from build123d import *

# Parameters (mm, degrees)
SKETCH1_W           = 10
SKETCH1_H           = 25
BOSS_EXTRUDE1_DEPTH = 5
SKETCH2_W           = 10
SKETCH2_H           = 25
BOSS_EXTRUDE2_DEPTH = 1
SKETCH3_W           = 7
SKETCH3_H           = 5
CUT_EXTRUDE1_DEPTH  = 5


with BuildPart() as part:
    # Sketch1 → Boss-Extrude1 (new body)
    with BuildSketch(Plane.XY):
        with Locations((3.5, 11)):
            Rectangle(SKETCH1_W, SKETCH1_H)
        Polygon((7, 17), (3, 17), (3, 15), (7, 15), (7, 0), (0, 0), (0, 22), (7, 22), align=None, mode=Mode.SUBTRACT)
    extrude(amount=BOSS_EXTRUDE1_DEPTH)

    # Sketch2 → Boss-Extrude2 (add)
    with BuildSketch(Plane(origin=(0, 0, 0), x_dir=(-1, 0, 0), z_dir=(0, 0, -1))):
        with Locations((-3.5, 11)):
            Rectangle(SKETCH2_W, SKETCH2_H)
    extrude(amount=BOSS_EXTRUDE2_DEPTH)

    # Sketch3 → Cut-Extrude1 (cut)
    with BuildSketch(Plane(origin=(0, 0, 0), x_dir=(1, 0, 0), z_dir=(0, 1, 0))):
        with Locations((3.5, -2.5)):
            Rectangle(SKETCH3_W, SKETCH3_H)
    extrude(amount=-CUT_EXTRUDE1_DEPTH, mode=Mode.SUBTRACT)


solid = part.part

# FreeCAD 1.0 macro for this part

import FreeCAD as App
import Part
import Sketcher
Q = App.Units.Quantity


def add_polygon(sketch, points):
    """Adds a closed chain of lines whose ends are joined by coincident constraints."""
    first, n = sketch.GeometryCount, len(points)
    for a, b in zip(points, points[1:] + points[:1]):
        sketch.addGeometry(Part.LineSegment(App.Vector(*a, 0), App.Vector(*b, 0)), False)
    for i in range(n):
        sketch.addConstraint(Sketcher.Constraint("Coincident", first + i, 2, first + (i + 1) % n, 1))

doc = App.newDocument("Part")
body = doc.addObject("PartDesign::Body", "Body")

# Sketch on XY plane
sketch1 = body.newObject("Sketcher::SketchObject", "Sketch")
sketch1.AttachmentSupport = (doc.getObject("XY_Plane"), [""])
sketch1.MapMode = "FlatFace"
add_polygon(sketch1, [(-1.5, 23.5), (-1.5, -1.5), (8.5, -1.5), (8.5, 23.5)])  # lines 0-3
add_polygon(sketch1, [(7, 22), (7, 17), (3, 17), (3, 15), (7, 15), (7, 0), (0, 0), (0, 22)])  # lines 4-11
sketch1.addConstraint(Sketcher.Constraint("Vertical", 0))
sketch1.addConstraint(Sketcher.Constraint("Horizontal", 1))
sketch1.addConstraint(Sketcher.Constraint("Vertical", 2))
sketch1.addConstraint(Sketcher.Constraint("Horizontal", 3))
sketch1.addConstraint(Sketcher.Constraint("Vertical", 4))
sketch1.addConstraint(Sketcher.Constraint("Horizontal", 5))
sketch1.addConstraint(Sketcher.Constraint("Vertical", 6))
sketch1.addConstraint(Sketcher.Constraint("Horizontal", 7))
sketch1.addConstraint(Sketcher.Constraint("Vertical", 8))
sketch1.addConstraint(Sketcher.Constraint("Horizontal", 9))
sketch1.addConstraint(Sketcher.Constraint("Vertical", 10))
sketch1.addConstraint(Sketcher.Constraint("Horizontal", 11))
sketch1.addConstraint(Sketcher.Constraint("Coincident", 9, 2, -1, 1))
sketch1.addConstraint(Sketcher.Constraint("Vertical", 4, 2, 7, 2))
sketch1.addConstraint(Sketcher.Constraint("DistanceX", 1, 1, 1, 2, Q("10 mm")))
sketch1.addConstraint(Sketcher.Constraint("DistanceX", 5, 2, 5, 1, Q("4 mm")))
sketch1.addConstraint(Sketcher.Constraint("DistanceX", 9, 2, 9, 1, Q("7 mm")))
sketch1.addConstraint(Sketcher.Constraint("DistanceY", 0, 2, 0, 1, Q("25 mm")))
sketch1.addConstraint(Sketcher.Constraint("DistanceY", 4, 2, 4, 1, Q("5 mm")))
sketch1.addConstraint(Sketcher.Constraint("DistanceY", 6, 2, 6, 1, Q("2 mm")))
sketch1.addConstraint(Sketcher.Constraint("DistanceY", 8, 2, 8, 1, Q("15 mm")))
sketch1.addConstraint(Sketcher.Constraint("DistanceX", 0, 2, -1, 1, Q("1.5 mm")))
sketch1.addConstraint(Sketcher.Constraint("DistanceY", 0, 2, -1, 1, Q("1.5 mm")))
pad1 = body.newObject("PartDesign::Pad", "Pad")
pad1.Profile = sketch1
pad1.Length = 5

# Sketch on XY plane
sketch2 = body.newObject("Sketcher::SketchObject", "Sketch001")
sketch2.AttachmentSupport = (doc.getObject("XY_Plane"), [""])
sketch2.MapMode = "FlatFace"
add_polygon(sketch2, [(8, 24), (8, -2), (-2, -2), (-2, 24)])  # lines 0-3
sketch2.addConstraint(Sketcher.Constraint("Vertical", 0))
sketch2.addConstraint(Sketcher.Constraint("Horizontal", 1))
sketch2.addConstraint(Sketcher.Constraint("Vertical", 2))
sketch2.addConstraint(Sketcher.Constraint("Horizontal", 3))
sketch2.addConstraint(Sketcher.Constraint("DistanceX", 1, 2, 1, 1, Q("10 mm")))
sketch2.addConstraint(Sketcher.Constraint("DistanceY", 0, 2, 0, 1, Q("25 mm")))
sketch2.addConstraint(Sketcher.Constraint("DistanceX", -1, 1, 0, 2, Q("8.5 mm")))
sketch2.addConstraint(Sketcher.Constraint("DistanceY", 0, 2, -1, 1, Q("1.5 mm")))
pad2 = body.newObject("PartDesign::Pad", "Pad001")
pad2.Profile = sketch2
pad2.Length = 1
pad2.Reversed = True

# Sketch on XZ plane
sketch3 = body.newObject("Sketcher::SketchObject", "Sketch002")
sketch3.AttachmentSupport = (doc.getObject("XZ_Plane"), [""])
sketch3.MapMode = "FlatFace"
add_polygon(sketch3, [(0, 0), (0, 5), (7, 5), (7, 0)])  # lines 0-3
sketch3.addConstraint(Sketcher.Constraint("Vertical", 0))
sketch3.addConstraint(Sketcher.Constraint("Horizontal", 1))
sketch3.addConstraint(Sketcher.Constraint("Vertical", 2))
sketch3.addConstraint(Sketcher.Constraint("Horizontal", 3))
sketch3.addConstraint(Sketcher.Constraint("Coincident", 3, 2, -1, 1))
sketch3.addConstraint(Sketcher.Constraint("DistanceX", 1, 1, 1, 2, Q("7 mm")))
sketch3.addConstraint(Sketcher.Constraint("DistanceY", 0, 1, 0, 2, Q("5 mm")))
pocket1 = body.newObject("PartDesign::Pocket", "Pocket")
pocket1.Profile = sketch3
pocket1.Length = 5
pocket1.Reversed = True

doc.recompute()
